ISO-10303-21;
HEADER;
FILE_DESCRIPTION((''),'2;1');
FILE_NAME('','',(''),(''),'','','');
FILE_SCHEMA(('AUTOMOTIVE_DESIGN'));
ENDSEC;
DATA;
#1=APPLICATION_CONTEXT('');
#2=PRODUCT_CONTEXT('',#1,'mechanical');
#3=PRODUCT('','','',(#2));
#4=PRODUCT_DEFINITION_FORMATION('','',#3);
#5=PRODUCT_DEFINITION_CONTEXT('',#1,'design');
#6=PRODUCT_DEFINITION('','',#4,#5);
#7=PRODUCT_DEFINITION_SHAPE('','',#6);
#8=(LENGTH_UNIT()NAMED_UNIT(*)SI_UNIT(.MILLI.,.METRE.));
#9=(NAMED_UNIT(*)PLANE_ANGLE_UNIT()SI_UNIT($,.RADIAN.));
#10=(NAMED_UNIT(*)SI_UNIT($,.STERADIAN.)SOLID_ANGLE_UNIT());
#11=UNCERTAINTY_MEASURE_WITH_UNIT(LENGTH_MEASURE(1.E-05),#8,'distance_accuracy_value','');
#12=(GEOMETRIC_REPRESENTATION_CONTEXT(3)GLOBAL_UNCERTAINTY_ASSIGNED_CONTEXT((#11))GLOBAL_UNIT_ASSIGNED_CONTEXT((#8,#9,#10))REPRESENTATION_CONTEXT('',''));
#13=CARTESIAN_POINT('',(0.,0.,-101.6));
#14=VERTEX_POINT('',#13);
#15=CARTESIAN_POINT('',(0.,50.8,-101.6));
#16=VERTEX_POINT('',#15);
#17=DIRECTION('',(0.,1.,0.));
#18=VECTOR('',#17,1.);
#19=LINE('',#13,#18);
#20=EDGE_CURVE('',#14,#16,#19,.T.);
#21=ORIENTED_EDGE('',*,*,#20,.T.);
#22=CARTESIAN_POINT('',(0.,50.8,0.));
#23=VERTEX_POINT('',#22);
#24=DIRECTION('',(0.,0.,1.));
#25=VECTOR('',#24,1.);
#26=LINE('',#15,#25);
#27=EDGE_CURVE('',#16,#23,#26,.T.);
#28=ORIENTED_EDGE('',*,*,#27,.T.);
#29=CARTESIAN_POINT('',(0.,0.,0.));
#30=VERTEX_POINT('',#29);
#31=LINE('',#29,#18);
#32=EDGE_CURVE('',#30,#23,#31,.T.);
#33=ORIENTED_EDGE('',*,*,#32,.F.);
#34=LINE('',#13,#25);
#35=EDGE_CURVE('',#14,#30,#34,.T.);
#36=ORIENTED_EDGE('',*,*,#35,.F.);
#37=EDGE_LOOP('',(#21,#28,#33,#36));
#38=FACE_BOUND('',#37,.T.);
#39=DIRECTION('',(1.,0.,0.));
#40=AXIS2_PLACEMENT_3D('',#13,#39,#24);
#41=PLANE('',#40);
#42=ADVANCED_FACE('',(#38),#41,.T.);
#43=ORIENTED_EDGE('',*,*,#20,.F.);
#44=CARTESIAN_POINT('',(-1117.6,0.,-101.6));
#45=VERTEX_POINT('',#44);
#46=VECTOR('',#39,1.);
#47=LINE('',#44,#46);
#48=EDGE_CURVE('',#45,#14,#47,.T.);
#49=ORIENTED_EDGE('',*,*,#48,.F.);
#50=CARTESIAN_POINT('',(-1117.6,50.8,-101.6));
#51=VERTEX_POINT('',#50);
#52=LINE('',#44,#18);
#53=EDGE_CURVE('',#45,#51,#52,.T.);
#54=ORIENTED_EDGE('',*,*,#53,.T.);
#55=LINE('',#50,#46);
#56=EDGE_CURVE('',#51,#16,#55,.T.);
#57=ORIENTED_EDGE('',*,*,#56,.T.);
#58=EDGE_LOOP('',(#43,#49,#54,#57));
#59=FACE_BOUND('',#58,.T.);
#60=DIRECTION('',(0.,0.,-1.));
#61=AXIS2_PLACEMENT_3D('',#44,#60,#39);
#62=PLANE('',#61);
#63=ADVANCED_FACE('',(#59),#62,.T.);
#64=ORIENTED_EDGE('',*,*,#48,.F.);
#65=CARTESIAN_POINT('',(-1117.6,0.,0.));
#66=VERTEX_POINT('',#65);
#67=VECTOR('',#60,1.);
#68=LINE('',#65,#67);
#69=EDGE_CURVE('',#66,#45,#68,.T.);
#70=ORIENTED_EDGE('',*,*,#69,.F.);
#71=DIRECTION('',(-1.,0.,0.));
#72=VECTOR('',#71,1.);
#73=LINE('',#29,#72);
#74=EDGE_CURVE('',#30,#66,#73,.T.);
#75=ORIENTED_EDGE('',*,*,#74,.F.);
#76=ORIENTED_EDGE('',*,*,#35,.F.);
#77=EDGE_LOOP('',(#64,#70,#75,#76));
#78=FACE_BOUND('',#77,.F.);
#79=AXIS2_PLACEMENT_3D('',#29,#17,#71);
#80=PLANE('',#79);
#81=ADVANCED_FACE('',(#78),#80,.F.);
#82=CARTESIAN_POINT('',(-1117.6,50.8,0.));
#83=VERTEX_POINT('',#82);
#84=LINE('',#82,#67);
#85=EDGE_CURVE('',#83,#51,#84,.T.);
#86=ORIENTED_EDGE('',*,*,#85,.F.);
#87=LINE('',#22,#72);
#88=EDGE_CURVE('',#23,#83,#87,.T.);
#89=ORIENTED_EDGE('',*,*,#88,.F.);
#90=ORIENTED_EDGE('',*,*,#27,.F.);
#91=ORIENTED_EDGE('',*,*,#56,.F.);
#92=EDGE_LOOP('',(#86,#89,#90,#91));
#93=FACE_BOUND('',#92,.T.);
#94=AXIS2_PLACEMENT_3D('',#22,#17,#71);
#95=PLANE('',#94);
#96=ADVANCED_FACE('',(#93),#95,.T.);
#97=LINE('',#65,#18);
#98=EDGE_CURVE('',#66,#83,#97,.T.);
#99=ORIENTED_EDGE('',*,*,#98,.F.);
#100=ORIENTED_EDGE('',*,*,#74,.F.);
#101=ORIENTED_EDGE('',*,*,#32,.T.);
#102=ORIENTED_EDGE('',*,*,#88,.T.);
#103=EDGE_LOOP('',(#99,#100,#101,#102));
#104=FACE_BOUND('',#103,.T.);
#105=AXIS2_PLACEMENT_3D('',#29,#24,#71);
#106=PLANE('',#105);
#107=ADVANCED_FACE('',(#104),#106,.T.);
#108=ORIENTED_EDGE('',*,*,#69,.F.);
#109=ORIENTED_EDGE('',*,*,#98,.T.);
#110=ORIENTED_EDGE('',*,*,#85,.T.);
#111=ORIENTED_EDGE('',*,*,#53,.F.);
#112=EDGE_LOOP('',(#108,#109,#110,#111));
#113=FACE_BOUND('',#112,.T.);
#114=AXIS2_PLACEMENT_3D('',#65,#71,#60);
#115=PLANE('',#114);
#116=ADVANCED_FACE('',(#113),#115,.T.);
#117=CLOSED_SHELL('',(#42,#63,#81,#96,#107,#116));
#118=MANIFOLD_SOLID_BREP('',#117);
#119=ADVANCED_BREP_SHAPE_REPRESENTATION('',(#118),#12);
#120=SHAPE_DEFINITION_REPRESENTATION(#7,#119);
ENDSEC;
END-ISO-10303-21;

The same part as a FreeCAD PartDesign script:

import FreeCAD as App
import Part
import Sketcher
Q = App.Units.Quantity


def add_polygon(sketch, points):
    """Adds a closed chain of lines whose ends are joined by coincident constraints."""
    first, n = sketch.GeometryCount, len(points)
    for a, b in zip(points, points[1:] + points[:1]):
        sketch.addGeometry(Part.LineSegment(App.Vector(*a, 0), App.Vector(*b, 0)), False)
    for i in range(n):
        sketch.addConstraint(Sketcher.Constraint("Coincident", first + i, 2, first + (i + 1) % n, 1))

doc = App.newDocument("Part")
params = doc.addObject("Spreadsheet::Sheet", "Params")
for row, (alias, value) in enumerate([
    ("sketch1_width", "44 in"),
    ("sketch1_height", "4 in"),
    ("pad1_length", "2 in"),
], start=1):
    params.set(f"A{row}", alias)
    params.set(f"B{row}", "=" + value)
    params.setAlias(f"B{row}", alias)

body = doc.addObject("PartDesign::Body", "Body")

# Sketch on XZ plane
sketch1 = doc.addObject("Sketcher::SketchObject", "Sketch")
body.addObject(sketch1)
sketch1.AttachmentSupport = (doc.XZ_Plane, [""])
sketch1.MapMode = "FlatFace"
add_polygon(sketch1, [(-1118, 0), (0, 0), (0, -102), (-1118, -102)])  # lines 0-3
sketch1.addConstraint(Sketcher.Constraint("Horizontal", 0))
sketch1.addConstraint(Sketcher.Constraint("Vertical", 1))
sketch1.addConstraint(Sketcher.Constraint("Horizontal", 2))
sketch1.addConstraint(Sketcher.Constraint("Vertical", 3))
sketch1.addConstraint(Sketcher.Constraint("Coincident", 0, 2, -1, 1))
sketch1.addConstraint(Sketcher.Constraint("DistanceX", 0, 1, 0, 2, Q("44 in")))
sketch1.addConstraint(Sketcher.Constraint("DistanceY", 1, 2, 1, 1, Q("4 in")))
sketch1.setExpression("Constraints[9]", "Params.sketch1_width")
sketch1.setExpression("Constraints[10]", "Params.sketch1_height")
pad1 = doc.addObject("PartDesign::Pad", "Pad")
body.addObject(pad1)
pad1.Profile = sketch1
pad1.setExpression("Length", "Params.pad1_length")
pad1.Reversed = True

doc.recompute()
